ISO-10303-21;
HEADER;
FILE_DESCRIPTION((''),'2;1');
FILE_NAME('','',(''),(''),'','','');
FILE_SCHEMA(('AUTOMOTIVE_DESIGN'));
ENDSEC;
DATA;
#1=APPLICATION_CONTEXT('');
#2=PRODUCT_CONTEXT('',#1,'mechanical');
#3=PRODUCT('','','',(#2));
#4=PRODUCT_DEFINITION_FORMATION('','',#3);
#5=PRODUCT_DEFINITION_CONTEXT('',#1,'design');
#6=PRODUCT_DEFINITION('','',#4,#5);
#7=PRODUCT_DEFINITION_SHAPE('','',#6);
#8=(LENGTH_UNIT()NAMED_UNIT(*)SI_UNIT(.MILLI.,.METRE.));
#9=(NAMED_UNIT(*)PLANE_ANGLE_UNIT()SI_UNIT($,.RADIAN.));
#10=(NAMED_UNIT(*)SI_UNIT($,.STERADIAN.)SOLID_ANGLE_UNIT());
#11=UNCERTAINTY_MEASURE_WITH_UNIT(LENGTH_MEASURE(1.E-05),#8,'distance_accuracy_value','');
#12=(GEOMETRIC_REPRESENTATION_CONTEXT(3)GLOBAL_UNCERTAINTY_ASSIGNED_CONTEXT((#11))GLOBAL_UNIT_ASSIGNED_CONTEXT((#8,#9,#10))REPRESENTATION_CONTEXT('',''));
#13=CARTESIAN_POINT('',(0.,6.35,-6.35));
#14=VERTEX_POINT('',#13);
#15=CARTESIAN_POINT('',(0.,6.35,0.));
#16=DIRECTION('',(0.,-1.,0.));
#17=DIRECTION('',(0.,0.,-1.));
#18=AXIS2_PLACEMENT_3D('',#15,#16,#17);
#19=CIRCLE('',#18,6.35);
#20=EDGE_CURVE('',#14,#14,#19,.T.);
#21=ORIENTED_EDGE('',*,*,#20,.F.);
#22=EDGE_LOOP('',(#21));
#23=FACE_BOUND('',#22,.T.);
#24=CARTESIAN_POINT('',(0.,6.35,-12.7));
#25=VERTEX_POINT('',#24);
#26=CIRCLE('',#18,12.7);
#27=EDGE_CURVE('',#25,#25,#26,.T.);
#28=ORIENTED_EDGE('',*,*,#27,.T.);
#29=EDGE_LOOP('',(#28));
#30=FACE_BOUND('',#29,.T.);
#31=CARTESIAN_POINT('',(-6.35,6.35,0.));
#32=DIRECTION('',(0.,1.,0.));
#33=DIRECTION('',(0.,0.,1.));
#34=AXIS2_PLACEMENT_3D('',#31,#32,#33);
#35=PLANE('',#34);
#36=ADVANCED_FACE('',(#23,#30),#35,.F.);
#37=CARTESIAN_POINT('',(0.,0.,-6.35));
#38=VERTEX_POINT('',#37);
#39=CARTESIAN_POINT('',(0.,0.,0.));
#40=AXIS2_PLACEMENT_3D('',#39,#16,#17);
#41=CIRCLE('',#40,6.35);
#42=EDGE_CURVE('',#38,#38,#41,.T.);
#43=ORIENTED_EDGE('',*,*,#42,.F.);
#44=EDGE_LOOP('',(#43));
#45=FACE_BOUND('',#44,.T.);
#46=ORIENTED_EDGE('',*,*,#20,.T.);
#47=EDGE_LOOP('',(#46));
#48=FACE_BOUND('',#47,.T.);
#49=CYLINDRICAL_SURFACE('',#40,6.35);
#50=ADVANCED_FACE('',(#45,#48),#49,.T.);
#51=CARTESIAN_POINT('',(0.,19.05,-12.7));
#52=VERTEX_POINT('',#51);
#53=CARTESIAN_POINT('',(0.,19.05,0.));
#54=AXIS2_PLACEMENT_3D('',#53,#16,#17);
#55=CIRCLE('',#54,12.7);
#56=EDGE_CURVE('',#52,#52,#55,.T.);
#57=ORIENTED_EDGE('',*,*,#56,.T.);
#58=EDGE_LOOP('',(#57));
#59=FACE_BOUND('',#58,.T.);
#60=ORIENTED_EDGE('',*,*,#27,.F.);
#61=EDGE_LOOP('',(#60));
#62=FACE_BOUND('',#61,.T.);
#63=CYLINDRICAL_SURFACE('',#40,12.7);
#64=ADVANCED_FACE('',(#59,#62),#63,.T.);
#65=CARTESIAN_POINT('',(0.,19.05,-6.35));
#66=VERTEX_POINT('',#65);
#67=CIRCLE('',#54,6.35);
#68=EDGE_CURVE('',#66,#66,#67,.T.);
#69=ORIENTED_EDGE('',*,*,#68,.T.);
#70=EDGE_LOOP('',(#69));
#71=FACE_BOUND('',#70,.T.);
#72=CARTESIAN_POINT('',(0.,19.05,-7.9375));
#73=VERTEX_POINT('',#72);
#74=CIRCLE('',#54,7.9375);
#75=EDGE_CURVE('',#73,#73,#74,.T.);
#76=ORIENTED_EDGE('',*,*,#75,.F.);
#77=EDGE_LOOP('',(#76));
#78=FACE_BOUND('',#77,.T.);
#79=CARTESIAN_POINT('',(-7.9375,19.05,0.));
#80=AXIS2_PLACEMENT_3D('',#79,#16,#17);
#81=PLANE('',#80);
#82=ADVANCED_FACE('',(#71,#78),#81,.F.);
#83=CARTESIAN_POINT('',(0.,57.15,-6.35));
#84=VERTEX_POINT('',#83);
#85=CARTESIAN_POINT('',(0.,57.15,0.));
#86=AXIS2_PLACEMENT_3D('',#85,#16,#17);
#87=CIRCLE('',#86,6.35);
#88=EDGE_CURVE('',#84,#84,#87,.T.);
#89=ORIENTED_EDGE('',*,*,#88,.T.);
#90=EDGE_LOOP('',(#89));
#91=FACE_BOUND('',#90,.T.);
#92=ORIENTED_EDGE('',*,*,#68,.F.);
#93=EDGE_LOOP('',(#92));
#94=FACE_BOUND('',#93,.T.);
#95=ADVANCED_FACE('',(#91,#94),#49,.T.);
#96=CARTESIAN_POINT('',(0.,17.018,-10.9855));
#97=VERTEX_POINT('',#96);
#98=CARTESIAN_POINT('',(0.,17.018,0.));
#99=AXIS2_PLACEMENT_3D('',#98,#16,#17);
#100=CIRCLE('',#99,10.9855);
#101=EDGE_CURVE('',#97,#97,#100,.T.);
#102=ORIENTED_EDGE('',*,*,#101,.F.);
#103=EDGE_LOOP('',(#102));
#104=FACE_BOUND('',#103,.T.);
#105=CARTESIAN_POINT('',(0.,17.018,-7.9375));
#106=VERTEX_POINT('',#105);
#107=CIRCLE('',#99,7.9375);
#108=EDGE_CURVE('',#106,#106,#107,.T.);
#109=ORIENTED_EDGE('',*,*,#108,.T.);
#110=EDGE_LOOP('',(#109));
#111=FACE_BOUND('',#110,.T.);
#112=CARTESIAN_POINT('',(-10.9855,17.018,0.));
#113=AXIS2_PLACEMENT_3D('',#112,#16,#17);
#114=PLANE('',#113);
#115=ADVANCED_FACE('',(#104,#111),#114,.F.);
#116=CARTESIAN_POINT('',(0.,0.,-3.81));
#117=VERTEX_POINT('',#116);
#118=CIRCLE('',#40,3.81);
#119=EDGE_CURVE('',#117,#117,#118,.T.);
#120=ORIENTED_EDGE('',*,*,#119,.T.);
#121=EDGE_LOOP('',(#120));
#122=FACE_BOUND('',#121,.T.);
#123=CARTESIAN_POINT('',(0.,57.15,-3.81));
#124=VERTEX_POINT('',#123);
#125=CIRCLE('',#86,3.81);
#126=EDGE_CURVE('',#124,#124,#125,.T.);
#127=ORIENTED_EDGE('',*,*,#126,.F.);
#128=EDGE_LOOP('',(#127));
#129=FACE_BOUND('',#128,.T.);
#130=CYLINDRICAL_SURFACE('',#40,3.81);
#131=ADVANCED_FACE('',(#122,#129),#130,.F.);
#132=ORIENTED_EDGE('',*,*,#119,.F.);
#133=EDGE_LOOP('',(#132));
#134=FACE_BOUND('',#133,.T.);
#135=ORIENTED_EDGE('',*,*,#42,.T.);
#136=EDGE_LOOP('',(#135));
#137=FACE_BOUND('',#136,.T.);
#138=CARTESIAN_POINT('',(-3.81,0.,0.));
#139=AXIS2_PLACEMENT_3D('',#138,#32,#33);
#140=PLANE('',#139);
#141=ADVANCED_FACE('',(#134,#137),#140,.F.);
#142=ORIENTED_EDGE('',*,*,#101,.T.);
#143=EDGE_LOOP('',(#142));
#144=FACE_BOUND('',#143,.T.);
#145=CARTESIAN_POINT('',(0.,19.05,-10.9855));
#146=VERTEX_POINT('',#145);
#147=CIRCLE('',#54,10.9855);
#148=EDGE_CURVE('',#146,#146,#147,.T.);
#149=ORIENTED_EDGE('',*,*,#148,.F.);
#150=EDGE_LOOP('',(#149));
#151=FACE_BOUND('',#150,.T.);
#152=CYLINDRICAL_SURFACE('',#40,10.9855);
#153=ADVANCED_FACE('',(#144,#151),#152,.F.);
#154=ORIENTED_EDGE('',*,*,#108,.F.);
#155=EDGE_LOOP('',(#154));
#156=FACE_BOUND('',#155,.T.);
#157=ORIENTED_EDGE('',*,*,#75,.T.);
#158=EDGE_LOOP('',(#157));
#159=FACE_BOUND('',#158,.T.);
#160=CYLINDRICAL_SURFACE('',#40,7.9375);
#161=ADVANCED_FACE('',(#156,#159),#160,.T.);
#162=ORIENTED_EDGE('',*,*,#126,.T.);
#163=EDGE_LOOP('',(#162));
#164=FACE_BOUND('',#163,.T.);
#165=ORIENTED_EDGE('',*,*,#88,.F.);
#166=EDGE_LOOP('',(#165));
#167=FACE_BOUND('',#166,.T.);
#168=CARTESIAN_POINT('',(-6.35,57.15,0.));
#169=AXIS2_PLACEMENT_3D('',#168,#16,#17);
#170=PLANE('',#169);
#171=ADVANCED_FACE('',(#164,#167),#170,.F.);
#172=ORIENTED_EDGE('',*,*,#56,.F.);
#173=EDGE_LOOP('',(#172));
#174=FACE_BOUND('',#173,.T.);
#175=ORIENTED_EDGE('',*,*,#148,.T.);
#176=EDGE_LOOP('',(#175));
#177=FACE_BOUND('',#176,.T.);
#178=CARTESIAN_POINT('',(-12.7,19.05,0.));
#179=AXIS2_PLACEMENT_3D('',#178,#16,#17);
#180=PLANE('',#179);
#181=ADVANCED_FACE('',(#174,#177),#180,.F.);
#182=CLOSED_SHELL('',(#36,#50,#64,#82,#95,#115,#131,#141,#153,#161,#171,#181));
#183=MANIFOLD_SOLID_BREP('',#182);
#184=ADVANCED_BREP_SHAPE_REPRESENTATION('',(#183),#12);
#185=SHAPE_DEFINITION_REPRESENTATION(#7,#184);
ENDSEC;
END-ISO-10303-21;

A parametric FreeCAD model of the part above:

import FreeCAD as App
import Part
import Sketcher

V = App.Vector
Q = App.Units.Quantity

doc = App.newDocument("Part")
body = doc.addObject("PartDesign::Body", "Body")

# Sketch on XY plane
sketch1 = body.newObject("Sketcher::SketchObject", "Sketch")
sketch1.AttachmentSupport = (doc.getObject("XY_Plane"), [""])
sketch1.MapMode = "FlatFace"
sketch1.addGeometry(Part.LineSegment(V(-6.3, 0, 0), V(-3.8, 0, 0)), False)
sketch1.addGeometry(Part.LineSegment(V(-3.8, 0, 0), V(-3.8, 57.1, 0)), False)
sketch1.addGeometry(Part.LineSegment(V(-3.8, 57.1, 0), V(-6.3, 57.1, 0)), False)
sketch1.addGeometry(Part.LineSegment(V(-6.3, 57.1, 0), V(-6.3, 19.1, 0)), False)
sketch1.addGeometry(Part.LineSegment(V(-6.3, 19.1, 0), V(-7.9, 19.1, 0)), False)
sketch1.addGeometry(Part.LineSegment(V(-7.9, 19.1, 0), V(-7.9, 17, 0)), False)
sketch1.addGeometry(Part.LineSegment(V(-7.9, 17, 0), V(-11, 17, 0)), False)
sketch1.addGeometry(Part.LineSegment(V(-11, 17, 0), V(-11, 19.1, 0)), False)
sketch1.addGeometry(Part.LineSegment(V(-11, 19.1, 0), V(-12.7, 19.1, 0)), False)
sketch1.addGeometry(Part.LineSegment(V(-12.7, 19.1, 0), V(-12.7, 6.3, 0)), False)
sketch1.addGeometry(Part.LineSegment(V(-12.7, 6.3, 0), V(-6.3, 6.3, 0)), False)
sketch1.addGeometry(Part.LineSegment(V(-6.3, 6.3, 0), V(-6.3, 0, 0)), False)
sketch1.addConstraint(Sketcher.Constraint("Coincident", 0, 2, 1, 1))
sketch1.addConstraint(Sketcher.Constraint("Coincident", 1, 2, 2, 1))
sketch1.addConstraint(Sketcher.Constraint("Coincident", 2, 2, 3, 1))
sketch1.addConstraint(Sketcher.Constraint("Coincident", 3, 2, 4, 1))
sketch1.addConstraint(Sketcher.Constraint("Coincident", 4, 2, 5, 1))
sketch1.addConstraint(Sketcher.Constraint("Coincident", 5, 2, 6, 1))
sketch1.addConstraint(Sketcher.Constraint("Coincident", 6, 2, 7, 1))
sketch1.addConstraint(Sketcher.Constraint("Coincident", 7, 2, 8, 1))
sketch1.addConstraint(Sketcher.Constraint("Coincident", 8, 2, 9, 1))
sketch1.addConstraint(Sketcher.Constraint("Coincident", 9, 2, 10, 1))
sketch1.addConstraint(Sketcher.Constraint("Coincident", 10, 2, 11, 1))
sketch1.addConstraint(Sketcher.Constraint("Coincident", 11, 2, 0, 1))
sketch1.addConstraint(Sketcher.Constraint("Horizontal", 0))
sketch1.addConstraint(Sketcher.Constraint("Vertical", 1))
sketch1.addConstraint(Sketcher.Constraint("Horizontal", 2))
sketch1.addConstraint(Sketcher.Constraint("Vertical", 3))
sketch1.addConstraint(Sketcher.Constraint("Horizontal", 4))
sketch1.addConstraint(Sketcher.Constraint("Vertical", 5))
sketch1.addConstraint(Sketcher.Constraint("Horizontal", 6))
sketch1.addConstraint(Sketcher.Constraint("Vertical", 7))
sketch1.addConstraint(Sketcher.Constraint("Horizontal", 8))
sketch1.addConstraint(Sketcher.Constraint("Vertical", 9))
sketch1.addConstraint(Sketcher.Constraint("Horizontal", 10))
sketch1.addConstraint(Sketcher.Constraint("Vertical", 11))
sketch1.addConstraint(Sketcher.Constraint("PointOnObject", 0, 2, -1))
sketch1.addConstraint(Sketcher.Constraint("Horizontal", 4, 2, 7, 2))
sketch1.addConstraint(Sketcher.Constraint("Vertical", 3, 2, 10, 2))
sketch1.addConstraint(Sketcher.Constraint("Equal", 10, 11))
sketch1.addConstraint(Sketcher.Constraint("DistanceX", 0, 1, 0, 2, Q("0.1 in")))
sketch1.addConstraint(Sketcher.Constraint("DistanceY", 3, 2, 3, 1, Q("1.5 in")))
sketch1.addConstraint(Sketcher.Constraint("DistanceY", 9, 2, 9, 1, Q("0.5 in")))
sketch1.addConstraint(Sketcher.Constraint("DistanceX", 6, 2, 6, 1, Q("0.12 in")))
sketch1.addConstraint(Sketcher.Constraint("DistanceX", 10, 1, 10, 2, Q("0.25 in")))
sketch1.addConstraint(Sketcher.Constraint("DistanceY", 5, 2, 5, 1, Q("0.08 in")))
sketch1.addConstraint(Sketcher.Constraint("DistanceX", 8, 2, -1, 1, Q("0.5 in")))
sketch1.addConstraint(Sketcher.Constraint("DistanceX", 4, 2, 4, 1, Q("0.0625 in")))
revolution = body.newObject("PartDesign::Revolution", "Revolution")
revolution.Profile = sketch1
revolution.ReferenceAxis = (sketch1, ["V_Axis"])
revolution.Angle = 360

doc.recompute()
